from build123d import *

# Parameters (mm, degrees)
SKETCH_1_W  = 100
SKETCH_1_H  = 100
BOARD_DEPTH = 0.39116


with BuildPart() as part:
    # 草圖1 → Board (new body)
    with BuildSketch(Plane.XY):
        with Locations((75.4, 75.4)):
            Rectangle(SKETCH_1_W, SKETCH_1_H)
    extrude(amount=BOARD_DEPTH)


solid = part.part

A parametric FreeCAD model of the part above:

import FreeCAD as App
import Part
import Sketcher
from FreeCAD import Vector

doc = App.newDocument("Part")
params = doc.addObject("Spreadsheet::Sheet", "Params")
for row, (alias, value) in enumerate([
    ("sketch1_width", "100 mm"),
    ("pad1_length", "0.39116 mm"),
], start=1):
    params.set(f"A{row}", alias)
    params.set(f"B{row}", "=" + value)
    params.setAlias(f"B{row}", alias)

body = doc.addObject("PartDesign::Body", "Body")

# Sketch on XY plane
sketch1 = doc.addObject("Sketcher::SketchObject", "Sketch")
body.addObject(sketch1)
sketch1.AttachmentSupport = (doc.XY_Plane, [""])
sketch1.MapMode = "FlatFace"
sketch1.addGeometry(Part.LineSegment(Vector(25, 125, 0), Vector(25, 25, 0)), False)
sketch1.addGeometry(Part.LineSegment(Vector(25, 25, 0), Vector(125, 25, 0)), False)
sketch1.addGeometry(Part.LineSegment(Vector(125, 25, 0), Vector(125, 125, 0)), False)
sketch1.addGeometry(Part.LineSegment(Vector(125, 125, 0), Vector(25, 125, 0)), False)
sketch1.addConstraint(Sketcher.Constraint("Coincident", 0, 2, 1, 1))
sketch1.addConstraint(Sketcher.Constraint("Coincident", 1, 2, 2, 1))
sketch1.addConstraint(Sketcher.Constraint("Coincident", 2, 2, 3, 1))
sketch1.addConstraint(Sketcher.Constraint("Coincident", 3, 2, 0, 1))
sketch1.addConstraint(Sketcher.Constraint("Vertical", 0))
sketch1.addConstraint(Sketcher.Constraint("Horizontal", 1))
sketch1.addConstraint(Sketcher.Constraint("Vertical", 2))
sketch1.addConstraint(Sketcher.Constraint("Horizontal", 3))
sketch1.addConstraint(Sketcher.Constraint("Equal", 3, 0))
sketch1.addConstraint(Sketcher.Constraint("DistanceX", 1, 1, 1, 2, 100.0))
sketch1.addConstraint(Sketcher.Constraint("DistanceX", -1, 1, 0, 2, 25.4))
sketch1.addConstraint(Sketcher.Constraint("DistanceY", -1, 1, 0, 2, 25.4))
sketch1.setExpression("Constraints[9]", "Params.sketch1_width")
pad1 = doc.addObject("PartDesign::Pad", "Pad")
body.addObject(pad1)
pad1.Profile = sketch1
pad1.setExpression("Length", "Params.pad1_length")

doc.recompute()
